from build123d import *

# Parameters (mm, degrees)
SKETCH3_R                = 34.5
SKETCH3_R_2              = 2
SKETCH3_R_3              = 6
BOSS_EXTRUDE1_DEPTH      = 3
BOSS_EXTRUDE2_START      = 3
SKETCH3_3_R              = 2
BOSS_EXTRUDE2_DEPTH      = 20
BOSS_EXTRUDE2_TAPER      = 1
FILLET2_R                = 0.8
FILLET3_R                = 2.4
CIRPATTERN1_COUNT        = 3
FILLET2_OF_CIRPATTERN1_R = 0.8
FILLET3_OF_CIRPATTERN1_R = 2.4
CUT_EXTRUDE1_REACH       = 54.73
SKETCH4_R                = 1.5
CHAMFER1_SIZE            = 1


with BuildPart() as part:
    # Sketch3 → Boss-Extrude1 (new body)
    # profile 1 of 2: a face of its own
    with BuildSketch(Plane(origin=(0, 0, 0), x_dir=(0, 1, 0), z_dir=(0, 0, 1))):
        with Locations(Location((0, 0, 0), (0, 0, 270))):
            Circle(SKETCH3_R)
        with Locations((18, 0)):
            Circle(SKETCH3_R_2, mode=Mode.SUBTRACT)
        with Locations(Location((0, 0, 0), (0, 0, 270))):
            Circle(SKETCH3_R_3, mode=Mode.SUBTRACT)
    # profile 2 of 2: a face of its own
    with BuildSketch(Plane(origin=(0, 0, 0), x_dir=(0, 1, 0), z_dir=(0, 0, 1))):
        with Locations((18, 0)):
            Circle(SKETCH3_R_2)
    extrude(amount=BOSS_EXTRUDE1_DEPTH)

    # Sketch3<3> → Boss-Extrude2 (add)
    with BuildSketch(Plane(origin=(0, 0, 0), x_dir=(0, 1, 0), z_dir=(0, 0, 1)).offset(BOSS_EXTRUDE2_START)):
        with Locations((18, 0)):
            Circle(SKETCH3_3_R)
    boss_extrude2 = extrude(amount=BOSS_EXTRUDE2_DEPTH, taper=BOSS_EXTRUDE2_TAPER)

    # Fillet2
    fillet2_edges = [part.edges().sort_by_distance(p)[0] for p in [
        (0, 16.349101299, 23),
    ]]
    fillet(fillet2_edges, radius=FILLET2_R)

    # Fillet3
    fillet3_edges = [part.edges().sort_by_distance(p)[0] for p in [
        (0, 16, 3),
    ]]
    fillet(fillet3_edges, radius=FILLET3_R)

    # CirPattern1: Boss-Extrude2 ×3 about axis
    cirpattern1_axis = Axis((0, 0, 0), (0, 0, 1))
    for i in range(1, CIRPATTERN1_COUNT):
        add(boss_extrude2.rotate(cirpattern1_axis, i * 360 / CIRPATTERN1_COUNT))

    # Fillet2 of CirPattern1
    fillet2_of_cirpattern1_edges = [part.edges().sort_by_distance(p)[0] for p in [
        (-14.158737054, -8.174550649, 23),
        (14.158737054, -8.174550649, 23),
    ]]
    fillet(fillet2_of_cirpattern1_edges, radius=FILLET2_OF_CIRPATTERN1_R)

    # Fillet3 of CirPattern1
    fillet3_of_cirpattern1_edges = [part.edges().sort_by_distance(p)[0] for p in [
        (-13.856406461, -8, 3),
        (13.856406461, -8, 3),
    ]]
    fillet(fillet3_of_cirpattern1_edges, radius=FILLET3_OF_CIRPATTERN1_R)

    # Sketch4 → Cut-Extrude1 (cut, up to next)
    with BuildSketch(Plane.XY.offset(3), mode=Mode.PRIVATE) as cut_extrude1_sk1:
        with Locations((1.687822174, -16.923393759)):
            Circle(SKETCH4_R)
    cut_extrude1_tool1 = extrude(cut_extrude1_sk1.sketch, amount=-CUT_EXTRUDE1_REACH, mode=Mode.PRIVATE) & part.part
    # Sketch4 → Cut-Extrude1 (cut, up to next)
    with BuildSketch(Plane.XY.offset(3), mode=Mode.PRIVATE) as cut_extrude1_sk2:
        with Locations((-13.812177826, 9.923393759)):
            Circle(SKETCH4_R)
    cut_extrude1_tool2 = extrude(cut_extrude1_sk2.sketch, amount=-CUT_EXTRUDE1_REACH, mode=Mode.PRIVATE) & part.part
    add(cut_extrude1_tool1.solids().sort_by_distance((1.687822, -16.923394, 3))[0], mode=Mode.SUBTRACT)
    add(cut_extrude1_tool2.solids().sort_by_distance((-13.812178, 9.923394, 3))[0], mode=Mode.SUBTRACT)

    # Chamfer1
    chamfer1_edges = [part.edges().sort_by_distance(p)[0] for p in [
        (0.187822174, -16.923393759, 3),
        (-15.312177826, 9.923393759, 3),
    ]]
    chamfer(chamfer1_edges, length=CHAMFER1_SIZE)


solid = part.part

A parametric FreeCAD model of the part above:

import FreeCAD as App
import Part
import Sketcher
from FreeCAD import Vector
Q = App.Units.Quantity


def edges_at(feature, points):
    """Names of the edges that pass closest to the given points."""
    edges = feature.Shape.Edges
    near = lambda p: min(range(len(edges)), key=lambda i: edges[i].distToShape(Part.Vertex(*p))[0])
    return sorted({f"Edge{near(p) + 1}" for p in points})

doc = App.newDocument("Part")
params = doc.addObject("Spreadsheet::Sheet", "Params")
for row, (alias, value) in enumerate([
    ("sketch1_diameter", "69 mm"),
    ("sketch1_diameter2", "12 mm"),
    ("pad1_length", "3 mm"),
    ("sketch2_diameter", "4 mm"),
    ("pad2_length", "20 mm"),
    ("pad2_taper", "-1 deg"),
    ("fillet_radius", "0.8 mm"),
    ("fillet2_radius", "2.4 mm"),
    ("fillet3_radius", "0.8 mm"),
    ("fillet4_radius", "2.4 mm"),
    ("sketch3_diameter", "3 mm"),
    ("sketch4_diameter", "3 mm"),
    ("chamfer_size", "1 mm"),
], start=1):
    params.set(f"A{row}", alias)
    params.set(f"B{row}", "=" + value)
    params.setAlias(f"B{row}", alias)

body = doc.addObject("PartDesign::Body", "Body")

# Sketch on XY plane
sketch1 = doc.addObject("Sketcher::SketchObject", "Sketch")
body.addObject(sketch1)
sketch1.AttachmentSupport = (doc.XY_Plane, [""])
sketch1.MapMode = "FlatFace"
sketch1.addGeometry([
    Part.Circle(Vector(0, 0, 0), Vector(0, 0, 1), 34),
    Part.Circle(Vector(0, 0, 0), Vector(0, 0, 1), 6),
], False)
sketch1.addConstraint([
    Sketcher.Constraint("Coincident", 0, 3, -1, 1),
    Sketcher.Constraint("Coincident", 1, 3, -1, 1),
    Sketcher.Constraint("Diameter", 0, Q("69 mm")),
    Sketcher.Constraint("Diameter", 1, Q("12 mm")),
])
sketch1.setExpression("Constraints[2]", "Params.sketch1_diameter")
sketch1.setExpression("Constraints[3]", "Params.sketch1_diameter2")
pad1 = doc.addObject("PartDesign::Pad", "Pad")
body.addObject(pad1)
pad1.Profile = sketch1
pad1.setExpression("Length", "Params.pad1_length")

# Sketch on XY plane
sketch2 = doc.addObject("Sketcher::SketchObject", "Sketch001")
body.addObject(sketch2)
sketch2.AttachmentSupport = (doc.XY_Plane, [""])
sketch2.MapMode = "FlatFace"
sketch2.AttachmentOffset = App.Placement(Vector(0, 0, 3), App.Rotation())
sketch2.addGeometry(Part.Circle(Vector(0, 18, 0), Vector(0, 0, 1), 2), False)
sketch2.addConstraint([
    Sketcher.Constraint("PointOnObject", 0, 3, -2),
    Sketcher.Constraint("Diameter", 0, Q("4 mm")),
    Sketcher.Constraint("DistanceY", -1, 1, 0, 3, Q("18 mm")),
])
sketch2.setExpression("Constraints[1]", "Params.sketch2_diameter")
pad2 = doc.addObject("PartDesign::Pad", "Pad001")
body.addObject(pad2)
pad2.Profile = sketch2
pad2.setExpression("Length", "Params.pad2_length")
pad2.setExpression("TaperAngle", "Params.pad2_taper")
doc.recompute()

fillet = doc.addObject("PartDesign::Fillet", "Fillet")
body.addObject(fillet)
fillet.Base = (pad2, edges_at(pad2, [(0, 16.349, 23)]))
fillet.setExpression("Radius", "Params.fillet_radius")
doc.recompute()

fillet2 = doc.addObject("PartDesign::Fillet", "Fillet001")
body.addObject(fillet2)
fillet2.Base = (fillet, edges_at(fillet, [(0, 16, 3)]))
fillet2.setExpression("Radius", "Params.fillet2_radius")
doc.recompute()

polarpattern = doc.addObject("PartDesign::PolarPattern", "PolarPattern")
body.addObject(polarpattern)
polarpattern.Originals = [pad2]
polarpattern.Axis = (doc.Z_Axis, [""])
polarpattern.Angle = 360
polarpattern.Occurrences = 3
body.Tip = polarpattern
doc.recompute()

fillet3 = doc.addObject("PartDesign::Fillet", "Fillet002")
body.addObject(fillet3)
fillet3.Base = (polarpattern, edges_at(polarpattern, [(-14.159, -8.175, 23), (14.159, -8.175, 23)]))
fillet3.setExpression("Radius", "Params.fillet3_radius")
doc.recompute()

fillet4 = doc.addObject("PartDesign::Fillet", "Fillet003")
body.addObject(fillet4)
fillet4.Base = (fillet3, edges_at(fillet3, [(-13.856, -8, 3), (13.856, -8, 3)]))
fillet4.setExpression("Radius", "Params.fillet4_radius")

# Sketch on XY plane
sketch3 = doc.addObject("Sketcher::SketchObject", "Sketch002")
body.addObject(sketch3)
sketch3.AttachmentSupport = (doc.XY_Plane, [""])
sketch3.MapMode = "FlatFace"
sketch3.AttachmentOffset = App.Placement(Vector(0, 0, 3), App.Rotation())
sketch3.addGeometry(Part.Circle(Vector(1.7, -16.9, 0), Vector(0, 0, 1), 1.5), False)
sketch3.addConstraint([
    Sketcher.Constraint("Diameter", 0, Q("3 mm")),
    Sketcher.Constraint("DistanceX", -1, 1, 0, 3, Q("1.687822 mm")),
    Sketcher.Constraint("DistanceY", 0, 3, -1, 1, Q("16.923394 mm")),
])
sketch3.setExpression("Constraints[0]", "Params.sketch3_diameter")
pocket1 = doc.addObject("PartDesign::Pocket", "Pocket")
body.addObject(pocket1)
pocket1.Profile = sketch3
pocket1.Type = "UpToFirst"

# Sketch on XY plane
sketch4 = doc.addObject("Sketcher::SketchObject", "Sketch003")
body.addObject(sketch4)
sketch4.AttachmentSupport = (doc.XY_Plane, [""])
sketch4.MapMode = "FlatFace"
sketch4.AttachmentOffset = App.Placement(Vector(0, 0, 3), App.Rotation())
sketch4.addGeometry(Part.Circle(Vector(-13.8, 9.9, 0), Vector(0, 0, 1), 1.5), False)
sketch4.addConstraint([
    Sketcher.Constraint("Diameter", 0, Q("3 mm")),
    Sketcher.Constraint("DistanceX", 0, 3, -1, 1, Q("13.812178 mm")),
    Sketcher.Constraint("DistanceY", -1, 1, 0, 3, Q("9.923394 mm")),
])
sketch4.setExpression("Constraints[0]", "Params.sketch4_diameter")
pocket2 = doc.addObject("PartDesign::Pocket", "Pocket001")
body.addObject(pocket2)
pocket2.Profile = sketch4
pocket2.Type = "UpToFirst"
doc.recompute()

chamfer = doc.addObject("PartDesign::Chamfer", "Chamfer")
body.addObject(chamfer)
chamfer.Base = (pocket2, edges_at(pocket2, [(0.188, -16.923, 3), (-15.312, 9.923, 3)]))
chamfer.setExpression("Size", "Params.chamfer_size")

doc.recompute()
